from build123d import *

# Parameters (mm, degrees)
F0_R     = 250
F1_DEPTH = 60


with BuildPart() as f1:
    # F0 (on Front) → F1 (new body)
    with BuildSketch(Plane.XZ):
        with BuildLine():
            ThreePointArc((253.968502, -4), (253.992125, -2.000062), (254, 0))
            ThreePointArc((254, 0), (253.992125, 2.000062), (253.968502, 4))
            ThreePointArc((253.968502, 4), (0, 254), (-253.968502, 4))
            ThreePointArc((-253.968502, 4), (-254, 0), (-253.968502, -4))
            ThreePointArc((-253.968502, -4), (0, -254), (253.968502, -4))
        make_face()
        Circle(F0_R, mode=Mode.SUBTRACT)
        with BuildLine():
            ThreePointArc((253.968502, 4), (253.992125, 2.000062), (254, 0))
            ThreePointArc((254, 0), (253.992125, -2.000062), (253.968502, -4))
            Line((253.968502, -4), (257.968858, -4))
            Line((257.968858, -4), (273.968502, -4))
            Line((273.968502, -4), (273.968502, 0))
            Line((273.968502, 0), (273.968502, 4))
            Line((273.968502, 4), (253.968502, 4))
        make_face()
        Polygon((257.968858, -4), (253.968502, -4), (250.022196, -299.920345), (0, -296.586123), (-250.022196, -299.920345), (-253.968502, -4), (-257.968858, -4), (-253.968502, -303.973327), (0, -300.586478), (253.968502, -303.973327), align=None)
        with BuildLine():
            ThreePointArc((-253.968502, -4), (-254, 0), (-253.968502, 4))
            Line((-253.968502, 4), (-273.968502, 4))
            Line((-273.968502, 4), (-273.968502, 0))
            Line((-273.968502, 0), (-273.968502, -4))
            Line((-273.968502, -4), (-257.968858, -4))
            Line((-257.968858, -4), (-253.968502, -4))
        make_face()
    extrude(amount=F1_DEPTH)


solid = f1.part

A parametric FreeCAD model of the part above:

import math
import FreeCAD as App
import Part
import Sketcher
from FreeCAD import Vector

doc = App.newDocument("Part")
body = doc.addObject("PartDesign::Body", "Body")

# Sketch on XZ plane
sketch1 = body.newObject("Sketcher::SketchObject", "Sketch")
sketch1.AttachmentSupport = (doc.getObject("XZ_Plane"), [""])
sketch1.MapMode = "FlatFace"
sketch1.addGeometry(Part.ArcOfCircle(Part.Circle(Vector(0, 0, 0), Vector(0, 0, 1), 254), math.radians(0.902333), math.radians(179.097667)), False)
sketch1.addGeometry(Part.LineSegment(Vector(-253.968502, 4, 0), Vector(-273.968502, 4, 0)), False)
sketch1.addGeometry(Part.LineSegment(Vector(-273.968502, 4, 0), Vector(-273.968502, -4, 0)), False)
sketch1.addGeometry(Part.LineSegment(Vector(-273.968502, -4, 0), Vector(-257.968858, -4, 0)), False)
sketch1.addGeometry(Part.LineSegment(Vector(-257.968858, -4, 0), Vector(-253.968502, -303.973327, 0)), False)
sketch1.addGeometry(Part.LineSegment(Vector(-253.968502, -303.973327, 0), Vector(0, -300.586478, 0)), False)
sketch1.addGeometry(Part.LineSegment(Vector(0, -300.586478, 0), Vector(253.968502, -303.973327, 0)), False)
sketch1.addGeometry(Part.LineSegment(Vector(253.968502, -303.973327, 0), Vector(257.968858, -4, 0)), False)
sketch1.addGeometry(Part.LineSegment(Vector(257.968858, -4, 0), Vector(273.968502, -4, 0)), False)
sketch1.addGeometry(Part.LineSegment(Vector(273.968502, -4, 0), Vector(273.968502, 4, 0)), False)
sketch1.addGeometry(Part.LineSegment(Vector(273.968502, 4, 0), Vector(253.968502, 4, 0)), False)
sketch1.addGeometry(Part.LineSegment(Vector(-250.022196, -299.920345, 0), Vector(-253.968502, -4, 0)), False)
sketch1.addGeometry(Part.ArcOfCircle(Part.Circle(Vector(0, 0, 0), Vector(0, 0, 1), 254), math.radians(-179.097667), math.radians(-0.902333)), False)
sketch1.addGeometry(Part.LineSegment(Vector(253.968502, -4, 0), Vector(250.022196, -299.920345, 0)), False)
sketch1.addGeometry(Part.LineSegment(Vector(250.022196, -299.920345, 0), Vector(0, -296.586123, 0)), False)
sketch1.addGeometry(Part.LineSegment(Vector(0, -296.586123, 0), Vector(-250.022196, -299.920345, 0)), False)
sketch1.addGeometry(Part.Circle(Vector(0, 0, 0), Vector(0, 0, 1), 250), False)
sketch1.addConstraint(Sketcher.Constraint("Coincident", 0, 2, 1, 1))
sketch1.addConstraint(Sketcher.Constraint("Coincident", 1, 2, 2, 1))
sketch1.addConstraint(Sketcher.Constraint("Coincident", 2, 2, 3, 1))
sketch1.addConstraint(Sketcher.Constraint("Coincident", 3, 2, 4, 1))
sketch1.addConstraint(Sketcher.Constraint("Coincident", 4, 2, 5, 1))
sketch1.addConstraint(Sketcher.Constraint("Coincident", 5, 2, 6, 1))
sketch1.addConstraint(Sketcher.Constraint("Coincident", 6, 2, 7, 1))
sketch1.addConstraint(Sketcher.Constraint("Coincident", 7, 2, 8, 1))
sketch1.addConstraint(Sketcher.Constraint("Coincident", 8, 2, 9, 1))
sketch1.addConstraint(Sketcher.Constraint("Coincident", 9, 2, 10, 1))
sketch1.addConstraint(Sketcher.Constraint("Coincident", 10, 2, 0, 1))
sketch1.addConstraint(Sketcher.Constraint("Coincident", 11, 2, 12, 1))
sketch1.addConstraint(Sketcher.Constraint("Coincident", 12, 2, 13, 1))
sketch1.addConstraint(Sketcher.Constraint("Coincident", 13, 2, 14, 1))
sketch1.addConstraint(Sketcher.Constraint("Coincident", 14, 2, 15, 1))
sketch1.addConstraint(Sketcher.Constraint("Coincident", 15, 2, 11, 1))
sketch1.addConstraint(Sketcher.Constraint("Horizontal", 1))
sketch1.addConstraint(Sketcher.Constraint("Vertical", 2))
sketch1.addConstraint(Sketcher.Constraint("Horizontal", 3))
sketch1.addConstraint(Sketcher.Constraint("Horizontal", 8))
sketch1.addConstraint(Sketcher.Constraint("Vertical", 9))
sketch1.addConstraint(Sketcher.Constraint("Horizontal", 10))
sketch1.addConstraint(Sketcher.Constraint("Coincident", 0, 3, -1, 1))
sketch1.addConstraint(Sketcher.Constraint("Coincident", 12, 3, -1, 1))
sketch1.addConstraint(Sketcher.Constraint("Coincident", 16, 3, -1, 1))
sketch1.addConstraint(Sketcher.Constraint("Equal", 0, 12))
sketch1.addConstraint(Sketcher.Constraint("Symmetric", 1, 2, 8, 2, -1, 1))
sketch1.addConstraint(Sketcher.Constraint("Symmetric", 4, 2, 6, 2, -2))
sketch1.addConstraint(Sketcher.Constraint("Symmetric", 3, 2, 7, 2, -2))
sketch1.addConstraint(Sketcher.Constraint("Symmetric", 13, 2, 15, 2, -2))
sketch1.addConstraint(Sketcher.Constraint("PointOnObject", 5, 2, -2))
sketch1.addConstraint(Sketcher.Constraint("PointOnObject", 14, 2, -2))
sketch1.addConstraint(Sketcher.Constraint("Perpendicular", 4, 5))
sketch1.addConstraint(Sketcher.Constraint("Perpendicular", 5, 11))
sketch1.addConstraint(Sketcher.Constraint("Perpendicular", 13, 14))
sketch1.addConstraint(Sketcher.Constraint("Horizontal", 1, 2, 9, 2))
sketch1.addConstraint(Sketcher.Constraint("Horizontal", 8, 2, 11, 2))
sketch1.addConstraint(Sketcher.Constraint("Horizontal", 11, 2, 12, 2))
sketch1.addConstraint(Sketcher.Constraint("Vertical", 0, 2, 4, 2))
sketch1.addConstraint(Sketcher.Constraint("Diameter", 16, 500.0))
sketch1.addConstraint(Sketcher.Constraint("Radius", 0, 254.0))
sketch1.addConstraint(Sketcher.Constraint("DistanceX", 1, 2, 1, 1, 20.0))
sketch1.addConstraint(Sketcher.Constraint("DistanceY", 2, 2, 2, 1, 8.0))
sketch1.addConstraint(Sketcher.Constraint("Distance", 4, 300.0))
sketch1.addConstraint(Sketcher.Constraint("DistanceX", 3, 1, 3, 2, 15.999644))
sketch1.addConstraint(Sketcher.Constraint("DistanceY", 6, 2, 13, 2, 4.052982))
pad1 = body.newObject("PartDesign::Pad", "Pad")
pad1.Profile = sketch1
pad1.Length = 60

doc.recompute()
